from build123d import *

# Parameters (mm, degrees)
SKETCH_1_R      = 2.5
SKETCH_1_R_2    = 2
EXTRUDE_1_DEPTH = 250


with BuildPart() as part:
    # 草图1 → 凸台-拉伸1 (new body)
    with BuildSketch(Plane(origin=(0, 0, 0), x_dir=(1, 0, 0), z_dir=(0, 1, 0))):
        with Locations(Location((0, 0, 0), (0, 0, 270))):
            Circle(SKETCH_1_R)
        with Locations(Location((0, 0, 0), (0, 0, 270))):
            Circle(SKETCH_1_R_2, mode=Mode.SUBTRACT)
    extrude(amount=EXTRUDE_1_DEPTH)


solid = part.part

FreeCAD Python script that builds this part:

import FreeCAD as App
import Part
import Sketcher
from FreeCAD import Vector

doc = App.newDocument("Part")
body = doc.addObject("PartDesign::Body", "Body")

sketch1 = body.newObject("Sketcher::SketchObject", "Sketch")
sketch1.AttachmentSupport = (doc.getObject("XZ_Plane"), [""])
sketch1.MapMode = "FlatFace"
sketch1.addGeometry([
    Part.Circle(Vector(0, 0, 0), Vector(0, 0, 1), 2.5),
    Part.Circle(Vector(0, 0, 0), Vector(0, 0, 1), 2),
], False)
sketch1.addConstraint([
    Sketcher.Constraint("Coincident", 0, 3, -1, 1),
    Sketcher.Constraint("Coincident", 1, 3, -1, 1),
    Sketcher.Constraint("Diameter", 0, 5.0),
    Sketcher.Constraint("Diameter", 1, 4.0),
])
pad1 = body.newObject("PartDesign::Pad", "Pad")
pad1.Profile = sketch1
pad1.Length = 250
pad1.Reversed = True

doc.recompute()
